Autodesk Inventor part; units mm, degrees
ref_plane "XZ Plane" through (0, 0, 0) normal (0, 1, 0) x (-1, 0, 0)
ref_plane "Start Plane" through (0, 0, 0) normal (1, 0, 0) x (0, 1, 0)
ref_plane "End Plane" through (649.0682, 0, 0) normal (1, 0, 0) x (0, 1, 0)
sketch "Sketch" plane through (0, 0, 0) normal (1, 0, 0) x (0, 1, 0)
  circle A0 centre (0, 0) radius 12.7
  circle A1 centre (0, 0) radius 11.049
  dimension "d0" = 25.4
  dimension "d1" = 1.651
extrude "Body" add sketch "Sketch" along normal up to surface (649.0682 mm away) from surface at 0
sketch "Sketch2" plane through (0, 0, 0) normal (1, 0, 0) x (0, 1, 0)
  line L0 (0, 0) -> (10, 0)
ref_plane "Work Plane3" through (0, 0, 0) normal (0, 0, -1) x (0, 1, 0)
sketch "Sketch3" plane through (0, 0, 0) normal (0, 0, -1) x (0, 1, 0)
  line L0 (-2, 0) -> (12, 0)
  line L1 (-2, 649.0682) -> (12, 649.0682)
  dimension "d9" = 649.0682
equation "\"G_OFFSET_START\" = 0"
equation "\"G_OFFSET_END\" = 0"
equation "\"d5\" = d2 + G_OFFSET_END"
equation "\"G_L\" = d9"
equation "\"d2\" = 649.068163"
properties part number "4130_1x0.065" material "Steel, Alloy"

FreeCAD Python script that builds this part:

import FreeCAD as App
import Part
import Sketcher
from FreeCAD import Vector
Q = App.Units.Quantity

doc = App.newDocument("Part")
body = doc.addObject("PartDesign::Body", "Body")

# Sketch on YZ plane
sketch1 = doc.addObject("Sketcher::SketchObject", "Sketch")
body.addObject(sketch1)
sketch1.AttachmentSupport = (doc.YZ_Plane, [""])
sketch1.MapMode = "FlatFace"
sketch1.addGeometry([
    Part.Circle(Vector(0, 0, 0), Vector(0, 0, 1), 13),
    Part.Circle(Vector(0, 0, 0), Vector(0, 0, 1), 11),
], False)
sketch1.addConstraint([
    Sketcher.Constraint("Coincident", 0, 3, -1, 1),
    Sketcher.Constraint("Coincident", 1, 3, -1, 1),
    Sketcher.Constraint("Diameter", 0, Q("1 in")),
    Sketcher.Constraint("Diameter", 1, Q("0.87 in")),
])
pad1 = doc.addObject("PartDesign::Pad", "Pad")
body.addObject(pad1)
pad1.Profile = sketch1
pad1.Length = 649.0682

doc.recompute()
